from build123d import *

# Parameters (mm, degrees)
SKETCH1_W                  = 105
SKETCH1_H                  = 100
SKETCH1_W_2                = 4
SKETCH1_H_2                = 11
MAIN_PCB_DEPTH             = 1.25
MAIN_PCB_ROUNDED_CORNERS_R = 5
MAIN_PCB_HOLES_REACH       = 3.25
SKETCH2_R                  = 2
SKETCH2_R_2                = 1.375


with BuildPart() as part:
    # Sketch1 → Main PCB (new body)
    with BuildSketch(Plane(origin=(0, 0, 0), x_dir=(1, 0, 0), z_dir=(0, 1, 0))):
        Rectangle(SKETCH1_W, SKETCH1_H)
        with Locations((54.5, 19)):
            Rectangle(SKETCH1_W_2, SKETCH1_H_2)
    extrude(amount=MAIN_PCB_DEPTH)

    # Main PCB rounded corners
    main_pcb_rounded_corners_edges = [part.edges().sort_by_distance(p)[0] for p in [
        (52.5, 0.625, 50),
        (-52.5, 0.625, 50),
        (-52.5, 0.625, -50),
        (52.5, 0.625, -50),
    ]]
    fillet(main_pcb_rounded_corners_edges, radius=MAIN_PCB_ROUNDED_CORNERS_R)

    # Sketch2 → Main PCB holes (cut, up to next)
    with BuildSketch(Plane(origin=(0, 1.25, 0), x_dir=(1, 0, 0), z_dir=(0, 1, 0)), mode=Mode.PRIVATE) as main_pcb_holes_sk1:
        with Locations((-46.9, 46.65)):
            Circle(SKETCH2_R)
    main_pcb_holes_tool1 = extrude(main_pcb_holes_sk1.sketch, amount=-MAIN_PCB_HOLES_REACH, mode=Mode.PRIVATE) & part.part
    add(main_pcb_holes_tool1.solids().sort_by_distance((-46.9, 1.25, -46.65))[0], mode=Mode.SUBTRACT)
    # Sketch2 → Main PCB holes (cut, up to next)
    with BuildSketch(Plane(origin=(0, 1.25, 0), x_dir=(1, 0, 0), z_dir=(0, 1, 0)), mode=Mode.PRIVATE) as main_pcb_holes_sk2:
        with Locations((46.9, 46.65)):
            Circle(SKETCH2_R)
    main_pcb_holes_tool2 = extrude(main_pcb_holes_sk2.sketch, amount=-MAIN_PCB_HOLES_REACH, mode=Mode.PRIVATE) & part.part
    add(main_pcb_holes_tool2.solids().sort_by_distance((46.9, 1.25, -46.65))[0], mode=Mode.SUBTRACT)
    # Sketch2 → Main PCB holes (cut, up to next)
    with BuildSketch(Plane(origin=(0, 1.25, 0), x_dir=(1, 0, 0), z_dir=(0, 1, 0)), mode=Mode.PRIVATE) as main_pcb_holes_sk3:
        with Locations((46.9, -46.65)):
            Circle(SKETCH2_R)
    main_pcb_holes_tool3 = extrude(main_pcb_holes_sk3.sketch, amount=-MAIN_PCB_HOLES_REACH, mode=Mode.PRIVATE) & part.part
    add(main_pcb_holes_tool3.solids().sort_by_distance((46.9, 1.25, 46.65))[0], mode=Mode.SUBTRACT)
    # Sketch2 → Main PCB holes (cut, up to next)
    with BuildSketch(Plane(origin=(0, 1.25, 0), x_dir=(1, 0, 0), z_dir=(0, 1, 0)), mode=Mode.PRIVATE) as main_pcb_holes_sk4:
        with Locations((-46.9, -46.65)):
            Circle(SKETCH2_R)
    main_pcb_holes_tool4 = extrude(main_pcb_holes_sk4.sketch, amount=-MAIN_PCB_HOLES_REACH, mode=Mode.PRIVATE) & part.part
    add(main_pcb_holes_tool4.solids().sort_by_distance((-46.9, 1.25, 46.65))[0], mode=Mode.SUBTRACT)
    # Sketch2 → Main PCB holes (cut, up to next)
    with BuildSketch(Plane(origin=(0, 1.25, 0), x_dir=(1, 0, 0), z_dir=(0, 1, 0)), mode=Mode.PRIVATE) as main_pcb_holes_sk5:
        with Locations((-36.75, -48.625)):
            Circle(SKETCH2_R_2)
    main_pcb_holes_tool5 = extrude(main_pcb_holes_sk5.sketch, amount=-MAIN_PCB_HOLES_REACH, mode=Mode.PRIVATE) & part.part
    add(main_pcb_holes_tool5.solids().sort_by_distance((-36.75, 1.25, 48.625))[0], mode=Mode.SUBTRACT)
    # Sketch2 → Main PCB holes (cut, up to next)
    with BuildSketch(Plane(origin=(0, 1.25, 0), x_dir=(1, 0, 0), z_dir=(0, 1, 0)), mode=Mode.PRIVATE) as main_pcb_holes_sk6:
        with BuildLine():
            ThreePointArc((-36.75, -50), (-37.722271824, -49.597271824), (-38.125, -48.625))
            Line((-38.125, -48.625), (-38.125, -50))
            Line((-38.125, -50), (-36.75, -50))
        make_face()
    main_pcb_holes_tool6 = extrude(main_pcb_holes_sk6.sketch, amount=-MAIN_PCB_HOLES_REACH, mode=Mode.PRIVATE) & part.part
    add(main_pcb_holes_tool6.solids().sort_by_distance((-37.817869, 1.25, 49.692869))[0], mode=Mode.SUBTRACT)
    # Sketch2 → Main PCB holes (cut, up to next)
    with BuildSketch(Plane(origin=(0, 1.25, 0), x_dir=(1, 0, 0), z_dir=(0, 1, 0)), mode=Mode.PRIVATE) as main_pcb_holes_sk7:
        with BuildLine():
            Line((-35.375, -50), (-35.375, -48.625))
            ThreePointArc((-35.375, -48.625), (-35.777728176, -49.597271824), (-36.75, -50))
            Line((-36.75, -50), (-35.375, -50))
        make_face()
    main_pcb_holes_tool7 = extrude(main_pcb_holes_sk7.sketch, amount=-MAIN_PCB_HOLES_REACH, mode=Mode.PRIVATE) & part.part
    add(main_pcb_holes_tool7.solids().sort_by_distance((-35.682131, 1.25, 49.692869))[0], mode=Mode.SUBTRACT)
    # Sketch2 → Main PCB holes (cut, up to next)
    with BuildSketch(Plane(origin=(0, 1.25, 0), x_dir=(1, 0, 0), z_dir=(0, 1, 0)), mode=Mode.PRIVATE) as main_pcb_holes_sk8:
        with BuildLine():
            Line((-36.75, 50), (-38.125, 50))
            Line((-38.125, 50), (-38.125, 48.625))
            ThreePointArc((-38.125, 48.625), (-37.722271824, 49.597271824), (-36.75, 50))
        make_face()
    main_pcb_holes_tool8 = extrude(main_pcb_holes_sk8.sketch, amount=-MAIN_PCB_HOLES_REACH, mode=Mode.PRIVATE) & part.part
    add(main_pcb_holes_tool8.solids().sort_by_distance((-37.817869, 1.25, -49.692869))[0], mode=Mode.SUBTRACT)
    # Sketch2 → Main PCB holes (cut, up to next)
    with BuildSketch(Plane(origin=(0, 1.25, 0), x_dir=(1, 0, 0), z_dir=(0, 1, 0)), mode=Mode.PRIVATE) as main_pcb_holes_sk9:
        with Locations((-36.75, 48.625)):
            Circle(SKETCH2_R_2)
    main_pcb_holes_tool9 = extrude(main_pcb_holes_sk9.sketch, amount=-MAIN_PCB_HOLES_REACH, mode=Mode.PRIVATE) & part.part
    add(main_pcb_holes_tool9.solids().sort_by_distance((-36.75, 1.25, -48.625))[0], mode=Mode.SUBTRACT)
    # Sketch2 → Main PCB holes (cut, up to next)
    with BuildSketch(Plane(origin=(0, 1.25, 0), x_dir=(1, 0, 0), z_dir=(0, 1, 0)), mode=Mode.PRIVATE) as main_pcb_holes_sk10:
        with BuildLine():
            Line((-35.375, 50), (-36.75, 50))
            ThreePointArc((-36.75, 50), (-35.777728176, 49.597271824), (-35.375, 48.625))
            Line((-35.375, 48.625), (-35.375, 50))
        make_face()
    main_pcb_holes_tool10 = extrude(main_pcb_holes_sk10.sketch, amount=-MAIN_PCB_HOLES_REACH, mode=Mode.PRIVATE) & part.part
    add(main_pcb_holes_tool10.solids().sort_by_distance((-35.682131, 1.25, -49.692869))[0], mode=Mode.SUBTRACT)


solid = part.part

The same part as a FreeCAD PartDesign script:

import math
import FreeCAD as App
import Part
import Sketcher
from FreeCAD import Vector
Q = App.Units.Quantity


def edges_at(feature, points):
    """Names of the edges that pass closest to the given points."""
    edges = feature.Shape.Edges
    near = lambda p: min(range(len(edges)), key=lambda i: edges[i].distToShape(Part.Vertex(*p))[0])
    return sorted({f"Edge{near(p) + 1}" for p in points})

doc = App.newDocument("Part")
body = doc.addObject("PartDesign::Body", "Body")

sketch1 = body.newObject("Sketcher::SketchObject", "Sketch")
sketch1.AttachmentSupport = (doc.getObject("XZ_Plane"), [""])
sketch1.MapMode = "FlatFace"
sketch1.addGeometry([
    Part.LineSegment(Vector(-52.5, -50, 0), Vector(-52.5, 50, 0)),
    Part.LineSegment(Vector(-52.5, 50, 0), Vector(52.5, 50, 0)),
    Part.LineSegment(Vector(52.5, 50, 0), Vector(52.5, -13.5, 0)),
    Part.LineSegment(Vector(52.5, -13.5, 0), Vector(56.5, -13.5, 0)),
    Part.LineSegment(Vector(56.5, -13.5, 0), Vector(56.5, -24.5, 0)),
    Part.LineSegment(Vector(56.5, -24.5, 0), Vector(52.5, -24.5, 0)),
    Part.LineSegment(Vector(52.5, -24.5, 0), Vector(52.5, -50, 0)),
    Part.LineSegment(Vector(52.5, -50, 0), Vector(-52.5, -50, 0)),
], False)
sketch1.addConstraint([
    Sketcher.Constraint("Coincident", 0, 2, 1, 1),
    Sketcher.Constraint("Coincident", 1, 2, 2, 1),
    Sketcher.Constraint("Coincident", 2, 2, 3, 1),
    Sketcher.Constraint("Coincident", 3, 2, 4, 1),
    Sketcher.Constraint("Coincident", 4, 2, 5, 1),
    Sketcher.Constraint("Coincident", 5, 2, 6, 1),
    Sketcher.Constraint("Coincident", 6, 2, 7, 1),
    Sketcher.Constraint("Coincident", 7, 2, 0, 1),
    Sketcher.Constraint("Vertical", 0),
    Sketcher.Constraint("Horizontal", 1),
    Sketcher.Constraint("Vertical", 2),
    Sketcher.Constraint("Horizontal", 3),
    Sketcher.Constraint("Vertical", 4),
    Sketcher.Constraint("Horizontal", 5),
    Sketcher.Constraint("Vertical", 6),
    Sketcher.Constraint("Horizontal", 7),
    Sketcher.Constraint("Symmetric", 0, 2, 6, 2, -1, 1),
    Sketcher.Constraint("Vertical", 2, 2, 5, 2),
    Sketcher.Constraint("DistanceX", 1, 1, 1, 2, Q("105 mm")),
    Sketcher.Constraint("DistanceX", 3, 1, 3, 2, Q("4 mm")),
    Sketcher.Constraint("DistanceY", 0, 1, 0, 2, Q("100 mm")),
    Sketcher.Constraint("DistanceY", 4, 2, 4, 1, Q("11 mm")),
    Sketcher.Constraint("DistanceY", 2, 2, 2, 1, Q("63.5 mm")),
])
pad1 = body.newObject("PartDesign::Pad", "Pad")
pad1.Profile = sketch1
pad1.Length = 1.25
pad1.Reversed = True
doc.recompute()

fillet = body.newObject("PartDesign::Fillet", "Fillet")
fillet.Base = (pad1, edges_at(pad1, [
    (52.5, 0.625, 50),
    (-52.5, 0.625, 50),
    (-52.5, 0.625, -50),
    (52.5, 0.625, -50),
]))
fillet.Radius = 5

sketch2 = body.newObject("Sketcher::SketchObject", "Sketch001")
sketch2.AttachmentSupport = (doc.getObject("XZ_Plane"), [""])
sketch2.MapMode = "FlatFace"
sketch2.AttachmentOffset = App.Placement(Vector(0, 0, -1.25), App.Rotation())
sketch2.addGeometry(Part.Circle(Vector(-46.9, -46.6, 0), Vector(0, 0, 1), 2), False)
sketch2.addConstraint([
    Sketcher.Constraint("Diameter", 0, Q("4 mm")),
    Sketcher.Constraint("DistanceX", 0, 3, -1, 1, Q("46.9 mm")),
    Sketcher.Constraint("DistanceY", 0, 3, -1, 1, Q("46.65 mm")),
])
pocket1 = body.newObject("PartDesign::Pocket", "Pocket")
pocket1.Profile = sketch2
pocket1.Type = "UpToFirst"
pocket1.Reversed = True

sketch3 = body.newObject("Sketcher::SketchObject", "Sketch002")
sketch3.AttachmentSupport = (doc.getObject("XZ_Plane"), [""])
sketch3.MapMode = "FlatFace"
sketch3.AttachmentOffset = App.Placement(Vector(0, 0, -1.25), App.Rotation())
sketch3.addGeometry(Part.Circle(Vector(46.9, -46.6, 0), Vector(0, 0, 1), 2), False)
sketch3.addConstraint([
    Sketcher.Constraint("Diameter", 0, Q("4 mm")),
    Sketcher.Constraint("DistanceX", -1, 1, 0, 3, Q("46.9 mm")),
    Sketcher.Constraint("DistanceY", 0, 3, -1, 1, Q("46.65 mm")),
])
pocket2 = body.newObject("PartDesign::Pocket", "Pocket001")
pocket2.Profile = sketch3
pocket2.Type = "UpToFirst"
pocket2.Reversed = True

sketch4 = body.newObject("Sketcher::SketchObject", "Sketch003")
sketch4.AttachmentSupport = (doc.getObject("XZ_Plane"), [""])
sketch4.MapMode = "FlatFace"
sketch4.AttachmentOffset = App.Placement(Vector(0, 0, -1.25), App.Rotation())
sketch4.addGeometry(Part.Circle(Vector(46.9, 46.6, 0), Vector(0, 0, 1), 2), False)
sketch4.addConstraint([
    Sketcher.Constraint("Diameter", 0, Q("4 mm")),
    Sketcher.Constraint("DistanceX", -1, 1, 0, 3, Q("46.9 mm")),
    Sketcher.Constraint("DistanceY", -1, 1, 0, 3, Q("46.65 mm")),
])
pocket3 = body.newObject("PartDesign::Pocket", "Pocket002")
pocket3.Profile = sketch4
pocket3.Type = "UpToFirst"
pocket3.Reversed = True

sketch5 = body.newObject("Sketcher::SketchObject", "Sketch004")
sketch5.AttachmentSupport = (doc.getObject("XZ_Plane"), [""])
sketch5.MapMode = "FlatFace"
sketch5.AttachmentOffset = App.Placement(Vector(0, 0, -1.25), App.Rotation())
sketch5.addGeometry(Part.Circle(Vector(-46.9, 46.6, 0), Vector(0, 0, 1), 2), False)
sketch5.addConstraint([
    Sketcher.Constraint("Diameter", 0, Q("4 mm")),
    Sketcher.Constraint("DistanceX", 0, 3, -1, 1, Q("46.9 mm")),
    Sketcher.Constraint("DistanceY", -1, 1, 0, 3, Q("46.65 mm")),
])
pocket4 = body.newObject("PartDesign::Pocket", "Pocket003")
pocket4.Profile = sketch5
pocket4.Type = "UpToFirst"
pocket4.Reversed = True

sketch6 = body.newObject("Sketcher::SketchObject", "Sketch005")
sketch6.AttachmentSupport = (doc.getObject("XZ_Plane"), [""])
sketch6.MapMode = "FlatFace"
sketch6.AttachmentOffset = App.Placement(Vector(0, 0, -1.25), App.Rotation())
sketch6.addGeometry(Part.Circle(Vector(-36.8, 48.6, 0), Vector(0, 0, 1), 1.4), False)
sketch6.addConstraint([
    Sketcher.Constraint("Diameter", 0, Q("2.75 mm")),
    Sketcher.Constraint("DistanceX", 0, 3, -1, 1, Q("36.75 mm")),
    Sketcher.Constraint("DistanceY", -1, 1, 0, 3, Q("48.625 mm")),
])
pocket5 = body.newObject("PartDesign::Pocket", "Pocket004")
pocket5.Profile = sketch6
pocket5.Type = "UpToFirst"
pocket5.Reversed = True

sketch7 = body.newObject("Sketcher::SketchObject", "Sketch006")
sketch7.AttachmentSupport = (doc.getObject("XZ_Plane"), [""])
sketch7.MapMode = "FlatFace"
sketch7.AttachmentOffset = App.Placement(Vector(0, 0, -1.25), App.Rotation())
sketch7.addGeometry([
    Part.ArcOfCircle(Part.Circle(Vector(-36.8, 48.6, 0), Vector(0, 0, 1), 1.4), math.radians(90), math.radians(180)),
    Part.LineSegment(Vector(-38.1, 48.6, 0), Vector(-38.1, 50, 0)),
    Part.LineSegment(Vector(-38.1, 50, 0), Vector(-36.8, 50, 0)),
], False)
sketch7.addConstraint([
    Sketcher.Constraint("Tangent", 0, 2, 1, 1),
    Sketcher.Constraint("Coincident", 1, 2, 2, 1),
    Sketcher.Constraint("Tangent", 2, 2, 0, 1),
    Sketcher.Constraint("Vertical", 1),
    Sketcher.Constraint("Horizontal", 2),
    Sketcher.Constraint("DistanceY", -1, 1, 1, 2, Q("50 mm")),
    Sketcher.Constraint("Radius", 0, Q("1.375 mm")),
    Sketcher.Constraint("DistanceX", 0, 3, -1, 1, Q("36.75 mm")),
])
pocket6 = body.newObject("PartDesign::Pocket", "Pocket005")
pocket6.Profile = sketch7
pocket6.Type = "UpToFirst"
pocket6.Reversed = True

sketch8 = body.newObject("Sketcher::SketchObject", "Sketch007")
sketch8.AttachmentSupport = (doc.getObject("XZ_Plane"), [""])
sketch8.MapMode = "FlatFace"
sketch8.AttachmentOffset = App.Placement(Vector(0, 0, -1.25), App.Rotation())
sketch8.addGeometry([
    Part.LineSegment(Vector(-35.4, 50, 0), Vector(-35.4, 48.6, 0)),
    Part.ArcOfCircle(Part.Circle(Vector(-36.8, 48.6, 0), Vector(0, 0, 1), 1.4), math.radians(0), math.radians(90)),
    Part.LineSegment(Vector(-36.8, 50, 0), Vector(-35.4, 50, 0)),
], False)
sketch8.addConstraint([
    Sketcher.Constraint("Tangent", 0, 2, 1, 1),
    Sketcher.Constraint("Tangent", 1, 2, 2, 1),
    Sketcher.Constraint("Coincident", 2, 2, 0, 1),
    Sketcher.Constraint("Vertical", 0),
    Sketcher.Constraint("Horizontal", 2),
    Sketcher.Constraint("DistanceY", -1, 1, 1, 2, Q("50 mm")),
    Sketcher.Constraint("Radius", 1, Q("1.375 mm")),
    Sketcher.Constraint("DistanceX", 1, 3, -1, 1, Q("36.75 mm")),
])
pocket7 = body.newObject("PartDesign::Pocket", "Pocket006")
pocket7.Profile = sketch8
pocket7.Type = "UpToFirst"
pocket7.Reversed = True

sketch9 = body.newObject("Sketcher::SketchObject", "Sketch008")
sketch9.AttachmentSupport = (doc.getObject("XZ_Plane"), [""])
sketch9.MapMode = "FlatFace"
sketch9.AttachmentOffset = App.Placement(Vector(0, 0, -1.25), App.Rotation())
sketch9.addGeometry([
    Part.LineSegment(Vector(-36.8, -50, 0), Vector(-38.1, -50, 0)),
    Part.LineSegment(Vector(-38.1, -50, 0), Vector(-38.1, -48.6, 0)),
    Part.ArcOfCircle(Part.Circle(Vector(-36.8, -48.6, 0), Vector(0, 0, 1), 1.4), math.radians(180), math.radians(270)),
], False)
sketch9.addConstraint([
    Sketcher.Constraint("Coincident", 0, 2, 1, 1),
    Sketcher.Constraint("Tangent", 1, 2, 2, 1),
    Sketcher.Constraint("Tangent", 2, 2, 0, 1),
    Sketcher.Constraint("Horizontal", 0),
    Sketcher.Constraint("Vertical", 1),
    Sketcher.Constraint("DistanceY", 0, 2, -1, 1, Q("50 mm")),
    Sketcher.Constraint("Radius", 2, Q("1.375 mm")),
    Sketcher.Constraint("DistanceX", 2, 3, -1, 1, Q("36.75 mm")),
])
pocket8 = body.newObject("PartDesign::Pocket", "Pocket007")
pocket8.Profile = sketch9
pocket8.Type = "UpToFirst"
pocket8.Reversed = True

sketch10 = body.newObject("Sketcher::SketchObject", "Sketch009")
sketch10.AttachmentSupport = (doc.getObject("XZ_Plane"), [""])
sketch10.MapMode = "FlatFace"
sketch10.AttachmentOffset = App.Placement(Vector(0, 0, -1.25), App.Rotation())
sketch10.addGeometry(Part.Circle(Vector(-36.8, -48.6, 0), Vector(0, 0, 1), 1.4), False)
sketch10.addConstraint([
    Sketcher.Constraint("Diameter", 0, Q("2.75 mm")),
    Sketcher.Constraint("DistanceX", 0, 3, -1, 1, Q("36.75 mm")),
    Sketcher.Constraint("DistanceY", 0, 3, -1, 1, Q("48.625 mm")),
])
pocket9 = body.newObject("PartDesign::Pocket", "Pocket008")
pocket9.Profile = sketch10
pocket9.Type = "UpToFirst"
pocket9.Reversed = True

sketch11 = body.newObject("Sketcher::SketchObject", "Sketch010")
sketch11.AttachmentSupport = (doc.getObject("XZ_Plane"), [""])
sketch11.MapMode = "FlatFace"
sketch11.AttachmentOffset = App.Placement(Vector(0, 0, -1.25), App.Rotation())
sketch11.addGeometry([
    Part.LineSegment(Vector(-35.4, -50, 0), Vector(-36.8, -50, 0)),
    Part.ArcOfCircle(Part.Circle(Vector(-36.8, -48.6, 0), Vector(0, 0, 1), 1.4), math.radians(-90), math.radians(0)),
    Part.LineSegment(Vector(-35.4, -48.6, 0), Vector(-35.4, -50, 0)),
], False)
sketch11.addConstraint([
    Sketcher.Constraint("Tangent", 0, 2, 1, 1),
    Sketcher.Constraint("Tangent", 1, 2, 2, 1),
    Sketcher.Constraint("Coincident", 2, 2, 0, 1),
    Sketcher.Constraint("Horizontal", 0),
    Sketcher.Constraint("Vertical", 2),
    Sketcher.Constraint("DistanceY", 0, 2, -1, 1, Q("50 mm")),
    Sketcher.Constraint("Radius", 1, Q("1.375 mm")),
    Sketcher.Constraint("DistanceX", 1, 3, -1, 1, Q("36.75 mm")),
])
pocket10 = body.newObject("PartDesign::Pocket", "Pocket009")
pocket10.Profile = sketch11
pocket10.Type = "UpToFirst"
pocket10.Reversed = True

doc.recompute()
